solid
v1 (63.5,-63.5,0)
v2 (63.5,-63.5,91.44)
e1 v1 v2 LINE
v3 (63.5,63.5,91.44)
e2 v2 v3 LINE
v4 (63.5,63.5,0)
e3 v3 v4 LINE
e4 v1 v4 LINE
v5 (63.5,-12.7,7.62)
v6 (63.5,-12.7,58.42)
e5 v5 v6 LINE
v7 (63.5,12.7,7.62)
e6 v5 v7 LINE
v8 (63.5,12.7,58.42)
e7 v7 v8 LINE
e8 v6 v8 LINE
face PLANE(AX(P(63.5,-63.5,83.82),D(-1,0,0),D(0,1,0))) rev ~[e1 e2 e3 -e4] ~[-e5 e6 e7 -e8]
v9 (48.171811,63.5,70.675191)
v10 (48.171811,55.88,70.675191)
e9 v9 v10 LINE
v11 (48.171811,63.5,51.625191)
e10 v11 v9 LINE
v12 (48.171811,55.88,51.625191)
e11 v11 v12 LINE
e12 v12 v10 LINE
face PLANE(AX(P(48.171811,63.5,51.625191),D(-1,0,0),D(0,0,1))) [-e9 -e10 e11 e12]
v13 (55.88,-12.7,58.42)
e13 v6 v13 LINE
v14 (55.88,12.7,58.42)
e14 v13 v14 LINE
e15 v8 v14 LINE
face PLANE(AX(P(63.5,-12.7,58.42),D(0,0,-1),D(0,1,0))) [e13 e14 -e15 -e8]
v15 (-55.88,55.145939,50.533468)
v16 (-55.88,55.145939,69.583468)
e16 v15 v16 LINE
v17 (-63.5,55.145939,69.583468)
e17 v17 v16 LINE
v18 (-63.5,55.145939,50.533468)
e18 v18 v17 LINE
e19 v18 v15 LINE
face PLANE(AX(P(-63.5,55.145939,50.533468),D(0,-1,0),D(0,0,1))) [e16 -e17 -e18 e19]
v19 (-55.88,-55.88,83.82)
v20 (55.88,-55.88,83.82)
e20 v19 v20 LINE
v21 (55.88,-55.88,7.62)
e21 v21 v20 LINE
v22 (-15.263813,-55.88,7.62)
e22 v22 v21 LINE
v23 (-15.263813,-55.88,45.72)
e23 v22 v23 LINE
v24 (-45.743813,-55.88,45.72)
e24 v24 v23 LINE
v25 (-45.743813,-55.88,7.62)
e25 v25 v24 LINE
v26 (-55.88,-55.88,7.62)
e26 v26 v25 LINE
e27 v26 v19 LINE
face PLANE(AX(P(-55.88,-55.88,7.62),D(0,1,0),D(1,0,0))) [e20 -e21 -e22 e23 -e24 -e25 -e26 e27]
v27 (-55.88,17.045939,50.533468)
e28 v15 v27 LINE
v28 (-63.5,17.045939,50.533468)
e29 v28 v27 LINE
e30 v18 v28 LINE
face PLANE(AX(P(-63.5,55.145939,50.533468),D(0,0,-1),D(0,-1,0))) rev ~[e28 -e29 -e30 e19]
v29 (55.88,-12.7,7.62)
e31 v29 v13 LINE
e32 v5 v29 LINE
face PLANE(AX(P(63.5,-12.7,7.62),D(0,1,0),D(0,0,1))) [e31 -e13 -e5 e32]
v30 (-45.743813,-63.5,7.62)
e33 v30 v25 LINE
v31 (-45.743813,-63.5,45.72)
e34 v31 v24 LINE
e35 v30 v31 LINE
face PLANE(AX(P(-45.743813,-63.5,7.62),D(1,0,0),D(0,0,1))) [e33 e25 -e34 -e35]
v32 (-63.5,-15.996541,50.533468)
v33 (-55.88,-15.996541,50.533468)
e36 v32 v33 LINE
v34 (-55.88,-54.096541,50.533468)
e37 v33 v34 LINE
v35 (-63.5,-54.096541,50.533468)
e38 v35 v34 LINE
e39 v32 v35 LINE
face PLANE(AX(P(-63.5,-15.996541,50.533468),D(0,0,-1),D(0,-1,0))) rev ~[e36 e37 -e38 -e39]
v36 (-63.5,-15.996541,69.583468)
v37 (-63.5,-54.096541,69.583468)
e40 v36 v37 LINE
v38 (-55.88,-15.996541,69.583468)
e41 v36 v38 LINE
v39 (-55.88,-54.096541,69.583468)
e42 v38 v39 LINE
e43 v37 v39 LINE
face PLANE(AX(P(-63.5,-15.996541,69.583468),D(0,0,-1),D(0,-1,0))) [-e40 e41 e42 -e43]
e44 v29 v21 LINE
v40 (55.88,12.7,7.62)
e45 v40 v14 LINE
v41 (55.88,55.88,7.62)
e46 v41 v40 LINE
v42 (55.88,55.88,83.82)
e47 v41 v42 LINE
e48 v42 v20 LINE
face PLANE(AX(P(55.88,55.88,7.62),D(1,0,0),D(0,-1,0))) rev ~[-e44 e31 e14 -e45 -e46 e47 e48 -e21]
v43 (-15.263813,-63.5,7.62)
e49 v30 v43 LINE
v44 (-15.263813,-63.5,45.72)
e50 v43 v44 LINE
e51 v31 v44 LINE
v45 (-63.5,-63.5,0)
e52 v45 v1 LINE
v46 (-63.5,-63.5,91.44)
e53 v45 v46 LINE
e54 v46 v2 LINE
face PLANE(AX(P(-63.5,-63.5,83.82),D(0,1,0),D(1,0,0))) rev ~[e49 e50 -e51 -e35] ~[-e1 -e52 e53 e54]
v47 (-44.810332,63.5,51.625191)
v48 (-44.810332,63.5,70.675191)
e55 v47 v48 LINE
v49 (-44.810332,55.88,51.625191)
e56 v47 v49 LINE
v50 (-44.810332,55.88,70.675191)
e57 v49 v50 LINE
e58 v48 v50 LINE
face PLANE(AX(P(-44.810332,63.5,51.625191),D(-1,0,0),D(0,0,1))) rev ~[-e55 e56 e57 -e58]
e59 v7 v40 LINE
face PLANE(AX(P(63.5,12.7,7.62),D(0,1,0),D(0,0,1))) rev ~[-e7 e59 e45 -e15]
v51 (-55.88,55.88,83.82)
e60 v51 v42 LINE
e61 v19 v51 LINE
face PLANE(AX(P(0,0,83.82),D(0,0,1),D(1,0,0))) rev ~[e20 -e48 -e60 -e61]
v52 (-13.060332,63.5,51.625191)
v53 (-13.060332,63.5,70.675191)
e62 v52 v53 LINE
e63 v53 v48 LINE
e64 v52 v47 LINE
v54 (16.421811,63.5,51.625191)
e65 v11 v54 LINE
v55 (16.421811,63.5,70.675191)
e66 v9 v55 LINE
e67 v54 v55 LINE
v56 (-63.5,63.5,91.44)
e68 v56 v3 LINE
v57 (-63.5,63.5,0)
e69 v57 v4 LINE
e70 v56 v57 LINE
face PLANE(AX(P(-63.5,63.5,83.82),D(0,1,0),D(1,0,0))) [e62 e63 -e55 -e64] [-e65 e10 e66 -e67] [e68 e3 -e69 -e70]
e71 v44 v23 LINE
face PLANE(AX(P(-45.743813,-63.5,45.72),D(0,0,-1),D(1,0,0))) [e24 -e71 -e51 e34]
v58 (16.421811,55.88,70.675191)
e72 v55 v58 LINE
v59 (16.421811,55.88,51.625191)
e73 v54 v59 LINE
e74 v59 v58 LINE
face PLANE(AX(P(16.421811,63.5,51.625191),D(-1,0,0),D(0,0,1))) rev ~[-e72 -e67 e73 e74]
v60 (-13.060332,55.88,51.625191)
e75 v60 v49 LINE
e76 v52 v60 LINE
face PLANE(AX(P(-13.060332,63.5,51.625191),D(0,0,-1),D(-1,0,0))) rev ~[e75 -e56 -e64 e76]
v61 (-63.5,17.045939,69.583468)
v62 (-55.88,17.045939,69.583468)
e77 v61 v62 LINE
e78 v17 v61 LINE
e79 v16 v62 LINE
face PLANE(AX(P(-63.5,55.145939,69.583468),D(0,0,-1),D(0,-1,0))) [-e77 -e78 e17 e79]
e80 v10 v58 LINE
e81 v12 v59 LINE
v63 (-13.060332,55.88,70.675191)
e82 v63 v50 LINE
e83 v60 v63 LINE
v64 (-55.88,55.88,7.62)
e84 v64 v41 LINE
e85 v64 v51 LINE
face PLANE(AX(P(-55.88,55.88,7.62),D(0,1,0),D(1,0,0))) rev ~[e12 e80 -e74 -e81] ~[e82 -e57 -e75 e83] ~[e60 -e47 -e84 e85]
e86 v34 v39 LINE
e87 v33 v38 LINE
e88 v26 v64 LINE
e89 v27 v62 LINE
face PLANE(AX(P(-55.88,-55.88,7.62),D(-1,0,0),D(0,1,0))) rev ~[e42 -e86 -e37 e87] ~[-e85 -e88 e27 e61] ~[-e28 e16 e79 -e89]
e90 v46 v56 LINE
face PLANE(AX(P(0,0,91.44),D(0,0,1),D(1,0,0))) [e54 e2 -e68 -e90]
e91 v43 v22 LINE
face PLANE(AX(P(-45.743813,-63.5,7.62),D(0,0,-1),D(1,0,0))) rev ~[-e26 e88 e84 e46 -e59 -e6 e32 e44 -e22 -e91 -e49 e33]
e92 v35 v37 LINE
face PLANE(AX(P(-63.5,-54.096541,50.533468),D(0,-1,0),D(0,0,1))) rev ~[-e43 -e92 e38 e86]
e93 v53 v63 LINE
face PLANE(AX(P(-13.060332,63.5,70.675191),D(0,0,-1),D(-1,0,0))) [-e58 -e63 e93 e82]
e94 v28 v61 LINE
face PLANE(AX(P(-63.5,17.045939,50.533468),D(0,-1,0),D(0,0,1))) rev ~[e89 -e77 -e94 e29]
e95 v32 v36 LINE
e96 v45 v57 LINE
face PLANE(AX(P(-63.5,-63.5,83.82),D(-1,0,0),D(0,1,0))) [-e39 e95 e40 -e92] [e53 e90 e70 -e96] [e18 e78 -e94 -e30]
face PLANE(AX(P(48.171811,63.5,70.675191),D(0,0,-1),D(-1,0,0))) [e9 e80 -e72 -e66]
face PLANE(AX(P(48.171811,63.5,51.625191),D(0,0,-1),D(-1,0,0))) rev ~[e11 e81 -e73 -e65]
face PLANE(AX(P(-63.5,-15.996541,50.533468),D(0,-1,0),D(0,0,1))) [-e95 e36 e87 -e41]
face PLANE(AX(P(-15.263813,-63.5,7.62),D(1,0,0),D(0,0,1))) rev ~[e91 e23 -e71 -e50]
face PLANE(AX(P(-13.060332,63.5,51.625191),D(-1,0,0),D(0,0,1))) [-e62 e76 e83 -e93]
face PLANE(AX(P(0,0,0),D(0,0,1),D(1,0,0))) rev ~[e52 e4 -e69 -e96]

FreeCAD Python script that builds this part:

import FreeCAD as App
import Part
import Sketcher

V = App.Vector
Q = App.Units.Quantity

doc = App.newDocument("Part")
body = doc.addObject("PartDesign::Body", "Body")

sketch1 = doc.addObject("Sketcher::SketchObject", "Sketch")
body.addObject(sketch1)
sketch1.AttachmentSupport = (doc.XY_Plane, [""])
sketch1.MapMode = "FlatFace"
sketch1.addGeometry([
    Part.LineSegment(V(-63.5, 63.5, 0), V(-63.5, -63.5, 0)),
    Part.LineSegment(V(-63.5, -63.5, 0), V(63.5, -63.5, 0)),
    Part.LineSegment(V(63.5, -63.5, 0), V(63.5, 63.5, 0)),
    Part.LineSegment(V(63.5, 63.5, 0), V(-63.5, 63.5, 0)),
], False)
sketch1.addConstraint([
    Sketcher.Constraint("Coincident", 0, 2, 1, 1),
    Sketcher.Constraint("Coincident", 1, 2, 2, 1),
    Sketcher.Constraint("Coincident", 2, 2, 3, 1),
    Sketcher.Constraint("Coincident", 3, 2, 0, 1),
    Sketcher.Constraint("Vertical", 0),
    Sketcher.Constraint("Horizontal", 1),
    Sketcher.Constraint("Vertical", 2),
    Sketcher.Constraint("Horizontal", 3),
    Sketcher.Constraint("Symmetric", 0, 2, 2, 2, -1, 1),
    Sketcher.Constraint("Equal", 3, 0),
    Sketcher.Constraint("DistanceX", 1, 1, 1, 2, Q("5 in")),
])
pad1 = doc.addObject("PartDesign::Pad", "Pad")
body.addObject(pad1)
pad1.Profile = sketch1
pad1.Length = Q("0.3 in")

sketch2 = doc.addObject("Sketcher::SketchObject", "Sketch001")
body.addObject(sketch2)
sketch2.AttachmentSupport = (doc.XY_Plane, [""])
sketch2.MapMode = "FlatFace"
sketch2.AttachmentOffset = App.Placement(V(0, 0, 0.3 * 25.4), App.Rotation())
sketch2.addGeometry([
    Part.LineSegment(V(-63.5, 63.5, 0), V(-63.5, -63.5, 0)),
    Part.LineSegment(V(-63.5, -63.5, 0), V(63.5, -63.5, 0)),
    Part.LineSegment(V(63.5, -63.5, 0), V(63.5, 63.5, 0)),
    Part.LineSegment(V(63.5, 63.5, 0), V(-63.5, 63.5, 0)),
    Part.LineSegment(V(-55.88, -55.88, 0), V(-55.88, 55.88, 0)),
    Part.LineSegment(V(-55.88, 55.88, 0), V(55.88, 55.88, 0)),
    Part.LineSegment(V(55.88, 55.88, 0), V(55.88, -55.88, 0)),
    Part.LineSegment(V(55.88, -55.88, 0), V(-55.88, -55.88, 0)),
], False)
sketch2.addConstraint([
    Sketcher.Constraint("Coincident", 0, 2, 1, 1),
    Sketcher.Constraint("Coincident", 1, 2, 2, 1),
    Sketcher.Constraint("Coincident", 2, 2, 3, 1),
    Sketcher.Constraint("Coincident", 3, 2, 0, 1),
    Sketcher.Constraint("Coincident", 4, 2, 5, 1),
    Sketcher.Constraint("Coincident", 5, 2, 6, 1),
    Sketcher.Constraint("Coincident", 6, 2, 7, 1),
    Sketcher.Constraint("Coincident", 7, 2, 4, 1),
    Sketcher.Constraint("Vertical", 0),
    Sketcher.Constraint("Horizontal", 1),
    Sketcher.Constraint("Vertical", 2),
    Sketcher.Constraint("Horizontal", 3),
    Sketcher.Constraint("Vertical", 4),
    Sketcher.Constraint("Horizontal", 5),
    Sketcher.Constraint("Vertical", 6),
    Sketcher.Constraint("Horizontal", 7),
    Sketcher.Constraint("Symmetric", 0, 2, 2, 2, -1, 1),
    Sketcher.Constraint("Symmetric", 4, 2, 6, 2, -1, 1),
    Sketcher.Constraint("Equal", 3, 0),
    Sketcher.Constraint("Equal", 7, 4),
    Sketcher.Constraint("DistanceX", 1, 1, 1, 2, Q("5 in")),
    Sketcher.Constraint("DistanceX", 5, 1, 5, 2, Q("4.4 in")),
])
pad2 = doc.addObject("PartDesign::Pad", "Pad001")
body.addObject(pad2)
pad2.Profile = sketch2
pad2.Length = Q("3 in")

sketch3 = doc.addObject("Sketcher::SketchObject", "Sketch002")
body.addObject(sketch3)
sketch3.AttachmentSupport = (doc.YZ_Plane, [""])
sketch3.MapMode = "FlatFace"
sketch3.AttachmentOffset = App.Placement(V(0, 0, 2.5 * 25.4), App.Rotation())
sketch3.addGeometry([
    Part.LineSegment(V(-12.7, 58.42, 0), V(-12.7, 7.62, 0)),
    Part.LineSegment(V(-12.7, 7.62, 0), V(12.7, 7.62, 0)),
    Part.LineSegment(V(12.7, 7.62, 0), V(12.7, 58.42, 0)),
    Part.LineSegment(V(12.7, 58.42, 0), V(-12.7, 58.42, 0)),
], False)
sketch3.addConstraint([
    Sketcher.Constraint("Coincident", 0, 2, 1, 1),
    Sketcher.Constraint("Coincident", 1, 2, 2, 1),
    Sketcher.Constraint("Coincident", 2, 2, 3, 1),
    Sketcher.Constraint("Coincident", 3, 2, 0, 1),
    Sketcher.Constraint("Vertical", 0),
    Sketcher.Constraint("Horizontal", 1),
    Sketcher.Constraint("Vertical", 2),
    Sketcher.Constraint("Horizontal", 3),
    Sketcher.Constraint("DistanceX", 1, 1, 1, 2, Q("1 in")),
    Sketcher.Constraint("DistanceY", 0, 2, 0, 1, Q("2 in")),
    Sketcher.Constraint("DistanceX", 0, 2, -1, 1, Q("0.5 in")),
    Sketcher.Constraint("DistanceY", -1, 1, 0, 2, Q("0.3 in")),
])
pocket1 = doc.addObject("PartDesign::Pocket", "Pocket")
body.addObject(pocket1)
pocket1.Profile = sketch3
pocket1.Length = Q("0.3 in")

sketch4 = doc.addObject("Sketcher::SketchObject", "Sketch003")
body.addObject(sketch4)
sketch4.AttachmentSupport = (doc.XZ_Plane, [""])
sketch4.MapMode = "FlatFace"
sketch4.AttachmentOffset = App.Placement(V(0, 0, -2.5 * 25.4), App.Rotation())
sketch4.addGeometry([
    Part.LineSegment(V(48.171811, 70.675191, 0), V(48.171811, 51.625191, 0)),
    Part.LineSegment(V(48.171811, 51.625191, 0), V(16.421811, 51.625191, 0)),
    Part.LineSegment(V(16.421811, 51.625191, 0), V(16.421811, 70.675191, 0)),
    Part.LineSegment(V(16.421811, 70.675191, 0), V(48.171811, 70.675191, 0)),
    Part.LineSegment(V(-13.060332, 70.675191, 0), V(-13.060332, 51.625191, 0)),
    Part.LineSegment(V(-13.060332, 51.625191, 0), V(-44.810332, 51.625191, 0)),
    Part.LineSegment(V(-44.810332, 51.625191, 0), V(-44.810332, 70.675191, 0)),
    Part.LineSegment(V(-44.810332, 70.675191, 0), V(-13.060332, 70.675191, 0)),
], False)
sketch4.addConstraint([
    Sketcher.Constraint("Coincident", 0, 2, 1, 1),
    Sketcher.Constraint("Coincident", 1, 2, 2, 1),
    Sketcher.Constraint("Coincident", 2, 2, 3, 1),
    Sketcher.Constraint("Coincident", 3, 2, 0, 1),
    Sketcher.Constraint("Coincident", 4, 2, 5, 1),
    Sketcher.Constraint("Coincident", 5, 2, 6, 1),
    Sketcher.Constraint("Coincident", 6, 2, 7, 1),
    Sketcher.Constraint("Coincident", 7, 2, 4, 1),
    Sketcher.Constraint("Vertical", 0),
    Sketcher.Constraint("Horizontal", 1),
    Sketcher.Constraint("Vertical", 2),
    Sketcher.Constraint("Horizontal", 3),
    Sketcher.Constraint("Vertical", 4),
    Sketcher.Constraint("Horizontal", 5),
    Sketcher.Constraint("Vertical", 6),
    Sketcher.Constraint("Horizontal", 7),
    Sketcher.Constraint("Horizontal", 1, 2, 4, 2),
    Sketcher.Constraint("Horizontal", 3, 2, 6, 2),
    Sketcher.Constraint("Equal", 3, 5),
    Sketcher.Constraint("DistanceX", 1, 2, 1, 1, Q("1.25 in")),
    Sketcher.Constraint("DistanceY", 0, 2, 0, 1, Q("0.75 in")),
    Sketcher.Constraint("DistanceX", -1, 1, 0, 2, 48.171811),
    Sketcher.Constraint("DistanceY", -1, 1, 0, 2, 51.625191),
    Sketcher.Constraint("DistanceX", 4, 2, -1, 1, 13.060332),
])
pocket2 = doc.addObject("PartDesign::Pocket", "Pocket001")
body.addObject(pocket2)
pocket2.Profile = sketch4
pocket2.Length = Q("0.3 in")
pocket2.Reversed = True

sketch5 = doc.addObject("Sketcher::SketchObject", "Sketch004")
body.addObject(sketch5)
sketch5.AttachmentSupport = (doc.YZ_Plane, [""])
sketch5.MapMode = "FlatFace"
sketch5.AttachmentOffset = App.Placement(V(0, 0, -2.5 * 25.4), App.Rotation())
sketch5.addGeometry([
    Part.LineSegment(V(55.145939, 69.583468, 0), V(55.145939, 50.533468, 0)),
    Part.LineSegment(V(55.145939, 50.533468, 0), V(17.045939, 50.533468, 0)),
    Part.LineSegment(V(17.045939, 50.533468, 0), V(17.045939, 69.583468, 0)),
    Part.LineSegment(V(17.045939, 69.583468, 0), V(55.145939, 69.583468, 0)),
    Part.LineSegment(V(-15.996541, 69.583468, 0), V(-15.996541, 50.533468, 0)),
    Part.LineSegment(V(-15.996541, 50.533468, 0), V(-54.096541, 50.533468, 0)),
    Part.LineSegment(V(-54.096541, 50.533468, 0), V(-54.096541, 69.583468, 0)),
    Part.LineSegment(V(-54.096541, 69.583468, 0), V(-15.996541, 69.583468, 0)),
], False)
sketch5.addConstraint([
    Sketcher.Constraint("Coincident", 0, 2, 1, 1),
    Sketcher.Constraint("Coincident", 1, 2, 2, 1),
    Sketcher.Constraint("Coincident", 2, 2, 3, 1),
    Sketcher.Constraint("Coincident", 3, 2, 0, 1),
    Sketcher.Constraint("Coincident", 4, 2, 5, 1),
    Sketcher.Constraint("Coincident", 5, 2, 6, 1),
    Sketcher.Constraint("Coincident", 6, 2, 7, 1),
    Sketcher.Constraint("Coincident", 7, 2, 4, 1),
    Sketcher.Constraint("Vertical", 0),
    Sketcher.Constraint("Horizontal", 1),
    Sketcher.Constraint("Vertical", 2),
    Sketcher.Constraint("Horizontal", 3),
    Sketcher.Constraint("Vertical", 4),
    Sketcher.Constraint("Horizontal", 5),
    Sketcher.Constraint("Vertical", 6),
    Sketcher.Constraint("Horizontal", 7),
    Sketcher.Constraint("Horizontal", 1, 2, 4, 2),
    Sketcher.Constraint("Horizontal", 3, 2, 6, 2),
    Sketcher.Constraint("Equal", 3, 5),
    Sketcher.Constraint("DistanceX", 1, 2, 1, 1, Q("1.5 in")),
    Sketcher.Constraint("DistanceY", 0, 2, 0, 1, Q("0.75 in")),
    Sketcher.Constraint("DistanceX", -1, 1, 0, 2, Q("2.1711 in")),
    Sketcher.Constraint("DistanceX", 4, 2, -1, 1, 15.996541),
    Sketcher.Constraint("DistanceY", -1, 1, 0, 2, 50.533468),
])
pocket3 = doc.addObject("PartDesign::Pocket", "Pocket002")
body.addObject(pocket3)
pocket3.Profile = sketch5
pocket3.Length = Q("0.3 in")
pocket3.Reversed = True

sketch6 = doc.addObject("Sketcher::SketchObject", "Sketch005")
body.addObject(sketch6)
sketch6.AttachmentSupport = (doc.XY_Plane, [""])
sketch6.MapMode = "FlatFace"
sketch6.AttachmentOffset = App.Placement(V(0, 0, 3.3 * 25.4), App.Rotation())
sketch6.addGeometry([
    Part.LineSegment(V(-63.5, 63.5, 0), V(-63.5, -63.5, 0)),
    Part.LineSegment(V(-63.5, -63.5, 0), V(63.5, -63.5, 0)),
    Part.LineSegment(V(63.5, -63.5, 0), V(63.5, 63.5, 0)),
    Part.LineSegment(V(63.5, 63.5, 0), V(-63.5, 63.5, 0)),
], False)
sketch6.addConstraint([
    Sketcher.Constraint("Coincident", 0, 2, 1, 1),
    Sketcher.Constraint("Coincident", 1, 2, 2, 1),
    Sketcher.Constraint("Coincident", 2, 2, 3, 1),
    Sketcher.Constraint("Coincident", 3, 2, 0, 1),
    Sketcher.Constraint("Vertical", 0),
    Sketcher.Constraint("Horizontal", 1),
    Sketcher.Constraint("Vertical", 2),
    Sketcher.Constraint("Horizontal", 3),
    Sketcher.Constraint("Symmetric", 0, 2, 2, 2, -1, 1),
    Sketcher.Constraint("Equal", 3, 0),
    Sketcher.Constraint("DistanceX", 1, 1, 1, 2, Q("5 in")),
])
pad3 = doc.addObject("PartDesign::Pad", "Pad002")
body.addObject(pad3)
pad3.Profile = sketch6
pad3.Length = Q("0.3 in")

sketch7 = doc.addObject("Sketcher::SketchObject", "Sketch006")
body.addObject(sketch7)
sketch7.AttachmentSupport = (doc.XZ_Plane, [""])
sketch7.MapMode = "FlatFace"
sketch7.AttachmentOffset = App.Placement(V(0, 0, 2.5 * 25.4), App.Rotation())
sketch7.addGeometry([
    Part.LineSegment(V(-45.743813, 45.72, 0), V(-45.743813, 7.62, 0)),
    Part.LineSegment(V(-45.743813, 7.62, 0), V(-15.263813, 7.62, 0)),
    Part.LineSegment(V(-15.263813, 7.62, 0), V(-15.263813, 45.72, 0)),
    Part.LineSegment(V(-15.263813, 45.72, 0), V(-45.743813, 45.72, 0)),
], False)
sketch7.addConstraint([
    Sketcher.Constraint("Coincident", 0, 2, 1, 1),
    Sketcher.Constraint("Coincident", 1, 2, 2, 1),
    Sketcher.Constraint("Coincident", 2, 2, 3, 1),
    Sketcher.Constraint("Coincident", 3, 2, 0, 1),
    Sketcher.Constraint("Vertical", 0),
    Sketcher.Constraint("Horizontal", 1),
    Sketcher.Constraint("Vertical", 2),
    Sketcher.Constraint("Horizontal", 3),
    Sketcher.Constraint("DistanceX", 1, 1, 1, 2, Q("1.2 in")),
    Sketcher.Constraint("DistanceY", 0, 2, 0, 1, Q("1.5 in")),
    Sketcher.Constraint("DistanceY", -1, 1, 0, 2, Q("0.3 in")),
    Sketcher.Constraint("DistanceX", 0, 2, -1, 1, 45.743813),
])
pocket4 = doc.addObject("PartDesign::Pocket", "Pocket003")
body.addObject(pocket4)
pocket4.Profile = sketch7
pocket4.Length = Q("0.3 in")

doc.recompute()
